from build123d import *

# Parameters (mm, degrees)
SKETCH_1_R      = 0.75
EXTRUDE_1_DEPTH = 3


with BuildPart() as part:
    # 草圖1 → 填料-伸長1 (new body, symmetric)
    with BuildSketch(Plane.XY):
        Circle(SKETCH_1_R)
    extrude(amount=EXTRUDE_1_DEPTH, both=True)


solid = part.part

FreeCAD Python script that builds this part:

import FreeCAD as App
import Part
import Sketcher
Q = App.Units.Quantity

doc = App.newDocument("Part")
body = doc.addObject("PartDesign::Body", "Body")

# Sketch on XY plane
sketch1 = doc.addObject("Sketcher::SketchObject", "Sketch")
body.addObject(sketch1)
sketch1.AttachmentSupport = (doc.XY_Plane, [""])
sketch1.MapMode = "FlatFace"
sketch1.addGeometry(Part.Circle(App.Vector(0, 0, 0), App.Vector(0, 0, 1), 0.8), False)
sketch1.addConstraint([
    Sketcher.Constraint("Coincident", 0, 3, -1, 1),
    Sketcher.Constraint("Diameter", 0, Q("1.5 mm")),
])
pad1 = doc.addObject("PartDesign::Pad", "Pad")
body.addObject(pad1)
pad1.Profile = sketch1
pad1.Length = 6
pad1.Midplane = True

doc.recompute()
